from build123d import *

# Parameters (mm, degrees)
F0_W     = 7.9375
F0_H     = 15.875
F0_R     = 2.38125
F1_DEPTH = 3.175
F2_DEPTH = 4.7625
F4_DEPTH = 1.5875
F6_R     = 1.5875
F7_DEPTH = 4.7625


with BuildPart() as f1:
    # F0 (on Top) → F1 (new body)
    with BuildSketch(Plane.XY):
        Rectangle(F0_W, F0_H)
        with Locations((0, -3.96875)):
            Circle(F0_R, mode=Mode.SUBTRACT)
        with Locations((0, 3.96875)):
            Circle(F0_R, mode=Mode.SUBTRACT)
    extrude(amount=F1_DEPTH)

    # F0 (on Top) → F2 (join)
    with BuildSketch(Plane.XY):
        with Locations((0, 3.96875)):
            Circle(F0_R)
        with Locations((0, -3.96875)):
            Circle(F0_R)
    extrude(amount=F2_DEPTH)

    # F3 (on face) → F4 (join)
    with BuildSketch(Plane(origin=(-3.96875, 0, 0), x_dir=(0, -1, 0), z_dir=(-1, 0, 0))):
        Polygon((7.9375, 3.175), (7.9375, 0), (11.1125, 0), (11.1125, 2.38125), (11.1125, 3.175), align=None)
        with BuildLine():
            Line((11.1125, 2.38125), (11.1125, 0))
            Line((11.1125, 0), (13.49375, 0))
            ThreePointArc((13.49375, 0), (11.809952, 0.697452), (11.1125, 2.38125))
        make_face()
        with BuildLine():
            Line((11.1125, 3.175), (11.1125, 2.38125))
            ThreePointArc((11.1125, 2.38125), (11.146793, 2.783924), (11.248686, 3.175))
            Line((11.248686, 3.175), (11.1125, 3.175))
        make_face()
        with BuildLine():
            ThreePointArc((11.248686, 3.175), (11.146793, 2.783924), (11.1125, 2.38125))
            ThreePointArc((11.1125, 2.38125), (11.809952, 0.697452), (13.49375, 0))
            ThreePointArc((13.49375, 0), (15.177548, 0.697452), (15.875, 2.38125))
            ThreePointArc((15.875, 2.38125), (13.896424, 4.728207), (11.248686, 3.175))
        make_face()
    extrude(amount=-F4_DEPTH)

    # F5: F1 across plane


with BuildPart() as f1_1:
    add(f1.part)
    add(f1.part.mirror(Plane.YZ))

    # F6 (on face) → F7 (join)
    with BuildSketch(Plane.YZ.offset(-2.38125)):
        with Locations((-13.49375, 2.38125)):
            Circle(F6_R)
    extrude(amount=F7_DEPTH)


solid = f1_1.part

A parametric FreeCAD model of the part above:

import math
import FreeCAD as App
import Part
import Sketcher
from FreeCAD import Vector
Q = App.Units.Quantity


def add_polygon(sketch, points):
    """Adds a closed chain of lines whose ends are joined by coincident constraints."""
    first, n = sketch.GeometryCount, len(points)
    for a, b in zip(points, points[1:] + points[:1]):
        sketch.addGeometry(Part.LineSegment(App.Vector(*a, 0), App.Vector(*b, 0)), False)
    for i in range(n):
        sketch.addConstraint(Sketcher.Constraint("Coincident", first + i, 2, first + (i + 1) % n, 1))

doc = App.newDocument("Part")
body = doc.addObject("PartDesign::Body", "Body")

# Sketch on XY plane
sketch1 = body.newObject("Sketcher::SketchObject", "Sketch")
sketch1.AttachmentSupport = (doc.getObject("XY_Plane"), [""])
sketch1.MapMode = "FlatFace"
add_polygon(sketch1, [(-4, 7.9), (-4, -7.9), (4, -7.9), (4, 7.9)])  # lines 0-3
sketch1.addGeometry(Part.Circle(Vector(0, -4, 0), Vector(0, 0, 1), 2.4), False)  # 4
sketch1.addGeometry(Part.Circle(Vector(0, 4, 0), Vector(0, 0, 1), 2.4), False)  # 5
sketch1.addConstraint(Sketcher.Constraint("Vertical", 0))
sketch1.addConstraint(Sketcher.Constraint("Horizontal", 1))
sketch1.addConstraint(Sketcher.Constraint("Vertical", 2))
sketch1.addConstraint(Sketcher.Constraint("Horizontal", 3))
sketch1.addConstraint(Sketcher.Constraint("Equal", 4, 5))
sketch1.addConstraint(Sketcher.Constraint("Symmetric", 4, 3, 5, 3, -1, 1))
sketch1.addConstraint(Sketcher.Constraint("Symmetric", 0, 2, 2, 2, -1, 1))
sketch1.addConstraint(Sketcher.Constraint("PointOnObject", 4, 3, -2))
sketch1.addConstraint(Sketcher.Constraint("Diameter", 4, Q("0.1875 in")))
sketch1.addConstraint(Sketcher.Constraint("DistanceX", 1, 1, 1, 2, Q("0.3125 in")))
sketch1.addConstraint(Sketcher.Constraint("DistanceY", 0, 2, 0, 1, Q("0.625 in")))
sketch1.addConstraint(Sketcher.Constraint("DistanceY", 4, 3, -1, 1, Q("0.15625 in")))
pad1 = body.newObject("PartDesign::Pad", "Pad")
pad1.Profile = sketch1
pad1.Length = Q("0.125 in")

# Sketch on XY plane
sketch2 = body.newObject("Sketcher::SketchObject", "Sketch001")
sketch2.AttachmentSupport = (doc.getObject("XY_Plane"), [""])
sketch2.MapMode = "FlatFace"
sketch2.addGeometry(Part.Circle(Vector(0, 4, 0), Vector(0, 0, 1), 2.4), False)
sketch2.addGeometry(Part.Circle(Vector(0, -4, 0), Vector(0, 0, 1), 2.4), False)
sketch2.addConstraint(Sketcher.Constraint("Equal", 0, 1))
sketch2.addConstraint(Sketcher.Constraint("Symmetric", 0, 3, 1, 3, -1, 1))
sketch2.addConstraint(Sketcher.Constraint("PointOnObject", 0, 3, -2))
sketch2.addConstraint(Sketcher.Constraint("Diameter", 0, Q("0.1875 in")))
sketch2.addConstraint(Sketcher.Constraint("DistanceY", -1, 1, 0, 3, Q("0.15625 in")))
pad2 = body.newObject("PartDesign::Pad", "Pad001")
pad2.Profile = sketch2
pad2.Length = Q("0.1875 in")

# Sketch on YZ plane
sketch3 = body.newObject("Sketcher::SketchObject", "Sketch002")
sketch3.AttachmentSupport = (doc.getObject("YZ_Plane"), [""])
sketch3.MapMode = "FlatFace"
sketch3.AttachmentOffset = App.Placement(Vector(0, 0, -0.15625 * 25.4), App.Rotation())
sketch3.addGeometry(Part.LineSegment(Vector(-7.9, 3.2, 0), Vector(-7.9, 0, 0)), False)
sketch3.addGeometry(Part.LineSegment(Vector(-7.9, 0, 0), Vector(-13.5, 0, 0)), False)
sketch3.addGeometry(Part.ArcOfCircle(Part.Circle(Vector(-13.5, 2.4, 0), Vector(0, 0, 1), 2.4), math.radians(-180), math.radians(-90)), False)
sketch3.addGeometry(Part.ArcOfCircle(Part.Circle(Vector(-13.5, 2.4, 0), Vector(0, 0, 1), 2.4), math.radians(19), math.radians(180)), False)
sketch3.addGeometry(Part.LineSegment(Vector(-11.2, 3.2, 0), Vector(-7.9, 3.2, 0)), False)
sketch3.addConstraint(Sketcher.Constraint("Coincident", 0, 2, 1, 1))
sketch3.addConstraint(Sketcher.Constraint("Tangent", 1, 2, 2, 2))
sketch3.addConstraint(Sketcher.Constraint("Tangent", 2, 1, 3, 2))
sketch3.addConstraint(Sketcher.Constraint("Coincident", 3, 1, 4, 1))
sketch3.addConstraint(Sketcher.Constraint("Coincident", 4, 2, 0, 1))
sketch3.addConstraint(Sketcher.Constraint("Vertical", 0))
sketch3.addConstraint(Sketcher.Constraint("Horizontal", 1))
sketch3.addConstraint(Sketcher.Constraint("Horizontal", 4))
sketch3.addConstraint(Sketcher.Constraint("Equal", 2, 3))
sketch3.addConstraint(Sketcher.Constraint("PointOnObject", 0, 2, -1))
sketch3.addConstraint(Sketcher.Constraint("Horizontal", 3, 3, 2, 1))
sketch3.addConstraint(Sketcher.Constraint("Radius", 2, Q("0.09375 in")))
sketch3.addConstraint(Sketcher.Constraint("DistanceX", 1, 2, 1, 1, Q("0.21875 in")))
sketch3.addConstraint(Sketcher.Constraint("DistanceY", 0, 2, 0, 1, Q("0.125 in")))
sketch3.addConstraint(Sketcher.Constraint("DistanceX", 2, 3, -1, 1, Q("0.53125 in")))
pad3 = body.newObject("PartDesign::Pad", "Pad002")
pad3.Profile = sketch3
pad3.Length = Q("0.0625 in")
body2 = doc.addObject("PartDesign::Body", "Body001")
doc.recompute()

body2.BaseFeature = body
doc.recompute()

mirroring = doc.addObject("Part::Mirroring", "Mirroring")
mirroring.Source = body
mirroring.Base = Vector(0, 0, 0)
mirroring.Normal = Vector(1, 0, 0)
body3 = doc.addObject("PartDesign::Body", "Body002")
body3.BaseFeature = mirroring
boolean = body2.newObject("PartDesign::Boolean", "Boolean")
boolean.Type = "Fuse"
boolean.addObjects([body3])
doc.recompute()

# Sketch on YZ plane
sketch4 = body2.newObject("Sketcher::SketchObject", "Sketch003")
sketch4.AttachmentSupport = (doc.getObject("YZ_Plane001"), [""])
sketch4.MapMode = "FlatFace"
sketch4.AttachmentOffset = App.Placement(Vector(0, 0, -0.09375 * 25.4), App.Rotation())
sketch4.addGeometry(Part.Circle(Vector(-13.5, 2.4, 0), Vector(0, 0, 1), 1.6), False)
sketch4.addConstraint(Sketcher.Constraint("Diameter", 0, Q("0.125 in")))
sketch4.addConstraint(Sketcher.Constraint("DistanceX", 0, 3, -1, 1, Q("0.53125 in")))
sketch4.addConstraint(Sketcher.Constraint("DistanceY", -1, 1, 0, 3, Q("0.09375 in")))
pad4 = body2.newObject("PartDesign::Pad", "Pad003")
pad4.Profile = sketch4
pad4.Length = Q("0.1875 in")
mirroring.Visibility = False

doc.recompute()
